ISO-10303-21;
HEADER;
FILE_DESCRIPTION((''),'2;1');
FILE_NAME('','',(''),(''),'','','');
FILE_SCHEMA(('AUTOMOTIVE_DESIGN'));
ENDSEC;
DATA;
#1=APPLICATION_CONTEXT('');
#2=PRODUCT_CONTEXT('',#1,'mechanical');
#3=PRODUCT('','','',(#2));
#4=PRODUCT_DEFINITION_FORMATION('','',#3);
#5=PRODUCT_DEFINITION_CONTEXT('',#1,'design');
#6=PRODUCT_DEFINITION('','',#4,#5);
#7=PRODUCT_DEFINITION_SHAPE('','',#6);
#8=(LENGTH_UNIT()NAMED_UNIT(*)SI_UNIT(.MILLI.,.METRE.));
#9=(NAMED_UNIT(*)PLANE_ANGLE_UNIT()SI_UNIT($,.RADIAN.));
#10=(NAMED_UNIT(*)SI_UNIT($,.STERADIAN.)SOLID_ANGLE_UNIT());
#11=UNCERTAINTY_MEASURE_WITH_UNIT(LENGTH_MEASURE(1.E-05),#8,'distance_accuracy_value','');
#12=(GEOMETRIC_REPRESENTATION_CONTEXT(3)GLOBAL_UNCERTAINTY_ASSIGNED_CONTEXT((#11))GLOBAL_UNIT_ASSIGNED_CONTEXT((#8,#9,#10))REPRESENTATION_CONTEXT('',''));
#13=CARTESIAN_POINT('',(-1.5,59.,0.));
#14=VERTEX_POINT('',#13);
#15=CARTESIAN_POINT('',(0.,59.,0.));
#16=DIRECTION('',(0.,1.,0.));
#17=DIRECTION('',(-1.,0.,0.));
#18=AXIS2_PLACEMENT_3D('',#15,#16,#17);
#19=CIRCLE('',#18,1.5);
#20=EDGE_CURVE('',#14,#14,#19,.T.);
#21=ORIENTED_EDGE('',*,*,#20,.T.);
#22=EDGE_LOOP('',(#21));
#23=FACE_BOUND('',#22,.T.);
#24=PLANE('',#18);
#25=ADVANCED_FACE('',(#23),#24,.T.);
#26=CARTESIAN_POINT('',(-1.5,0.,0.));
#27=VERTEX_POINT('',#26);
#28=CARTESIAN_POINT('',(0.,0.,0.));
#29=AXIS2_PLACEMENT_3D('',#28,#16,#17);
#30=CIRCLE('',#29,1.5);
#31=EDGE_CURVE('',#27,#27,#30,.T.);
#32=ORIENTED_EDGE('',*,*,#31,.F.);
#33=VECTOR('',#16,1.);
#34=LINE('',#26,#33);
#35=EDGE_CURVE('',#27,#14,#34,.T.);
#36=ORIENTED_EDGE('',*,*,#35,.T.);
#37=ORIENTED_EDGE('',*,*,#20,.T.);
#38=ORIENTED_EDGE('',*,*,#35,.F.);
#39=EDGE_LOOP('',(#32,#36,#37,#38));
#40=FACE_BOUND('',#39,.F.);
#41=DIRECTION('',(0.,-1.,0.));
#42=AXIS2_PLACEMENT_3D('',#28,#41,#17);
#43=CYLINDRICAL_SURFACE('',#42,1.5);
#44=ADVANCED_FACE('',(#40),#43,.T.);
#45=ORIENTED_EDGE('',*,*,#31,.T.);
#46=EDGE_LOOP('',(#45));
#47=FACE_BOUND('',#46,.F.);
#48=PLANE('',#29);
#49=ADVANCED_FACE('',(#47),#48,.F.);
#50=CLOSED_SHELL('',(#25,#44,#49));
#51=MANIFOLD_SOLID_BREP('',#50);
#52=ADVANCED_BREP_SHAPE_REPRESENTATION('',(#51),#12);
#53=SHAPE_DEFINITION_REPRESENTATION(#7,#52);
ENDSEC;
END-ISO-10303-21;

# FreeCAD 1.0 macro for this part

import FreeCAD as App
import Part
import Sketcher

V = App.Vector

doc = App.newDocument("Part")
params = doc.addObject("Spreadsheet::Sheet", "Params")
for row, (alias, value) in enumerate([
    ("sketch1_diameter", "3 mm"),
    ("pad1_length", "59 mm"),
], start=1):
    params.set(f"A{row}", alias)
    params.set(f"B{row}", "=" + value)
    params.setAlias(f"B{row}", alias)

body = doc.addObject("PartDesign::Body", "Body")

# Sketch on XZ plane
sketch1 = doc.addObject("Sketcher::SketchObject", "Sketch")
body.addObject(sketch1)
sketch1.AttachmentSupport = (doc.XZ_Plane, [""])
sketch1.MapMode = "FlatFace"
sketch1.addGeometry(Part.Circle(V(0, 0, 0), V(0, 0, 1), 1.5), False)
sketch1.addConstraint([
    Sketcher.Constraint("Coincident", 0, 3, -1, 1),
    Sketcher.Constraint("Diameter", 0, 3.0),
])
sketch1.setExpression("Constraints[1]", "Params.sketch1_diameter")
pad1 = doc.addObject("PartDesign::Pad", "Pad")
body.addObject(pad1)
pad1.Profile = sketch1
pad1.setExpression("Length", "Params.pad1_length")
pad1.Reversed = True

doc.recompute()
